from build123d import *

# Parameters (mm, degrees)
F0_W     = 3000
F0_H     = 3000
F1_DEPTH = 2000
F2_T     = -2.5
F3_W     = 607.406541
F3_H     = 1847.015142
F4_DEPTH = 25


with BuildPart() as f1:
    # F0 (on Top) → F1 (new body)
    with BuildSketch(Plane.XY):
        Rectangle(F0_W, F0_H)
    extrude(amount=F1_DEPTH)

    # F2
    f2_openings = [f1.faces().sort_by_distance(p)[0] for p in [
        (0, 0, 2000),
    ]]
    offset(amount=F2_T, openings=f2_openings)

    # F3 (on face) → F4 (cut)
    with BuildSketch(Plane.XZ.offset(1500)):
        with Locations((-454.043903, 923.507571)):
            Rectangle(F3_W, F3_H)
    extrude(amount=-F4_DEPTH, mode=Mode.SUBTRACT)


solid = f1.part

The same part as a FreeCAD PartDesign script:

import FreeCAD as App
import Part
import Sketcher

V = App.Vector


def faces_at(feature, points):
    """Names of the faces that lie closest to the given points."""
    faces = feature.Shape.Faces
    near = lambda p: min(range(len(faces)), key=lambda i: faces[i].distToShape(Part.Vertex(*p))[0])
    return sorted({f"Face{near(p) + 1}" for p in points})

doc = App.newDocument("Part")
body = doc.addObject("PartDesign::Body", "Body")

# Sketch on XY plane
sketch1 = body.newObject("Sketcher::SketchObject", "Sketch")
sketch1.AttachmentSupport = (doc.getObject("XY_Plane"), [""])
sketch1.MapMode = "FlatFace"
sketch1.addGeometry(Part.LineSegment(V(-1500, 1500, 0), V(-1500, -1500, 0)), False)
sketch1.addGeometry(Part.LineSegment(V(-1500, -1500, 0), V(1500, -1500, 0)), False)
sketch1.addGeometry(Part.LineSegment(V(1500, -1500, 0), V(1500, 1500, 0)), False)
sketch1.addGeometry(Part.LineSegment(V(1500, 1500, 0), V(-1500, 1500, 0)), False)
sketch1.addConstraint(Sketcher.Constraint("Coincident", 0, 2, 1, 1))
sketch1.addConstraint(Sketcher.Constraint("Coincident", 1, 2, 2, 1))
sketch1.addConstraint(Sketcher.Constraint("Coincident", 2, 2, 3, 1))
sketch1.addConstraint(Sketcher.Constraint("Coincident", 3, 2, 0, 1))
sketch1.addConstraint(Sketcher.Constraint("Vertical", 0))
sketch1.addConstraint(Sketcher.Constraint("Horizontal", 1))
sketch1.addConstraint(Sketcher.Constraint("Vertical", 2))
sketch1.addConstraint(Sketcher.Constraint("Horizontal", 3))
sketch1.addConstraint(Sketcher.Constraint("Symmetric", 0, 2, 2, 2, -1, 1))
sketch1.addConstraint(Sketcher.Constraint("Equal", 3, 0))
sketch1.addConstraint(Sketcher.Constraint("DistanceX", 1, 1, 1, 2, 3000.0))
pad1 = body.newObject("PartDesign::Pad", "Pad")
pad1.Profile = sketch1
pad1.Length = 2000
doc.recompute()

thickness = body.newObject("PartDesign::Thickness", "Thickness")
thickness.Base = (pad1, faces_at(pad1, [(0, 0, 2000)]))
thickness.Value = 2.5
thickness.Reversed = True
thickness.Join = "Arc"

# Sketch on XZ plane
sketch2 = body.newObject("Sketcher::SketchObject", "Sketch001")
sketch2.AttachmentSupport = (doc.getObject("XZ_Plane"), [""])
sketch2.MapMode = "FlatFace"
sketch2.AttachmentOffset = App.Placement(V(0, 0, 1500), App.Rotation())
sketch2.addGeometry(Part.LineSegment(V(-758, 1847, 0), V(-758, 0, 0)), False)
sketch2.addGeometry(Part.LineSegment(V(-758, 0, 0), V(-150, 0, 0)), False)
sketch2.addGeometry(Part.LineSegment(V(-150, 0, 0), V(-150, 1847, 0)), False)
sketch2.addGeometry(Part.LineSegment(V(-150, 1847, 0), V(-758, 1847, 0)), False)
sketch2.addConstraint(Sketcher.Constraint("Coincident", 0, 2, 1, 1))
sketch2.addConstraint(Sketcher.Constraint("Coincident", 1, 2, 2, 1))
sketch2.addConstraint(Sketcher.Constraint("Coincident", 2, 2, 3, 1))
sketch2.addConstraint(Sketcher.Constraint("Coincident", 3, 2, 0, 1))
sketch2.addConstraint(Sketcher.Constraint("Vertical", 0))
sketch2.addConstraint(Sketcher.Constraint("Horizontal", 1))
sketch2.addConstraint(Sketcher.Constraint("Vertical", 2))
sketch2.addConstraint(Sketcher.Constraint("Horizontal", 3))
sketch2.addConstraint(Sketcher.Constraint("PointOnObject", 0, 2, -1))
sketch2.addConstraint(Sketcher.Constraint("DistanceX", 1, 1, 1, 2, 607.406541))
sketch2.addConstraint(Sketcher.Constraint("DistanceY", 0, 2, 0, 1, 1847.015142))
sketch2.addConstraint(Sketcher.Constraint("DistanceX", 0, 2, -1, 1, 757.747174))
pocket1 = body.newObject("PartDesign::Pocket", "Pocket")
pocket1.Profile = sketch2
pocket1.Length = 25

doc.recompute()
